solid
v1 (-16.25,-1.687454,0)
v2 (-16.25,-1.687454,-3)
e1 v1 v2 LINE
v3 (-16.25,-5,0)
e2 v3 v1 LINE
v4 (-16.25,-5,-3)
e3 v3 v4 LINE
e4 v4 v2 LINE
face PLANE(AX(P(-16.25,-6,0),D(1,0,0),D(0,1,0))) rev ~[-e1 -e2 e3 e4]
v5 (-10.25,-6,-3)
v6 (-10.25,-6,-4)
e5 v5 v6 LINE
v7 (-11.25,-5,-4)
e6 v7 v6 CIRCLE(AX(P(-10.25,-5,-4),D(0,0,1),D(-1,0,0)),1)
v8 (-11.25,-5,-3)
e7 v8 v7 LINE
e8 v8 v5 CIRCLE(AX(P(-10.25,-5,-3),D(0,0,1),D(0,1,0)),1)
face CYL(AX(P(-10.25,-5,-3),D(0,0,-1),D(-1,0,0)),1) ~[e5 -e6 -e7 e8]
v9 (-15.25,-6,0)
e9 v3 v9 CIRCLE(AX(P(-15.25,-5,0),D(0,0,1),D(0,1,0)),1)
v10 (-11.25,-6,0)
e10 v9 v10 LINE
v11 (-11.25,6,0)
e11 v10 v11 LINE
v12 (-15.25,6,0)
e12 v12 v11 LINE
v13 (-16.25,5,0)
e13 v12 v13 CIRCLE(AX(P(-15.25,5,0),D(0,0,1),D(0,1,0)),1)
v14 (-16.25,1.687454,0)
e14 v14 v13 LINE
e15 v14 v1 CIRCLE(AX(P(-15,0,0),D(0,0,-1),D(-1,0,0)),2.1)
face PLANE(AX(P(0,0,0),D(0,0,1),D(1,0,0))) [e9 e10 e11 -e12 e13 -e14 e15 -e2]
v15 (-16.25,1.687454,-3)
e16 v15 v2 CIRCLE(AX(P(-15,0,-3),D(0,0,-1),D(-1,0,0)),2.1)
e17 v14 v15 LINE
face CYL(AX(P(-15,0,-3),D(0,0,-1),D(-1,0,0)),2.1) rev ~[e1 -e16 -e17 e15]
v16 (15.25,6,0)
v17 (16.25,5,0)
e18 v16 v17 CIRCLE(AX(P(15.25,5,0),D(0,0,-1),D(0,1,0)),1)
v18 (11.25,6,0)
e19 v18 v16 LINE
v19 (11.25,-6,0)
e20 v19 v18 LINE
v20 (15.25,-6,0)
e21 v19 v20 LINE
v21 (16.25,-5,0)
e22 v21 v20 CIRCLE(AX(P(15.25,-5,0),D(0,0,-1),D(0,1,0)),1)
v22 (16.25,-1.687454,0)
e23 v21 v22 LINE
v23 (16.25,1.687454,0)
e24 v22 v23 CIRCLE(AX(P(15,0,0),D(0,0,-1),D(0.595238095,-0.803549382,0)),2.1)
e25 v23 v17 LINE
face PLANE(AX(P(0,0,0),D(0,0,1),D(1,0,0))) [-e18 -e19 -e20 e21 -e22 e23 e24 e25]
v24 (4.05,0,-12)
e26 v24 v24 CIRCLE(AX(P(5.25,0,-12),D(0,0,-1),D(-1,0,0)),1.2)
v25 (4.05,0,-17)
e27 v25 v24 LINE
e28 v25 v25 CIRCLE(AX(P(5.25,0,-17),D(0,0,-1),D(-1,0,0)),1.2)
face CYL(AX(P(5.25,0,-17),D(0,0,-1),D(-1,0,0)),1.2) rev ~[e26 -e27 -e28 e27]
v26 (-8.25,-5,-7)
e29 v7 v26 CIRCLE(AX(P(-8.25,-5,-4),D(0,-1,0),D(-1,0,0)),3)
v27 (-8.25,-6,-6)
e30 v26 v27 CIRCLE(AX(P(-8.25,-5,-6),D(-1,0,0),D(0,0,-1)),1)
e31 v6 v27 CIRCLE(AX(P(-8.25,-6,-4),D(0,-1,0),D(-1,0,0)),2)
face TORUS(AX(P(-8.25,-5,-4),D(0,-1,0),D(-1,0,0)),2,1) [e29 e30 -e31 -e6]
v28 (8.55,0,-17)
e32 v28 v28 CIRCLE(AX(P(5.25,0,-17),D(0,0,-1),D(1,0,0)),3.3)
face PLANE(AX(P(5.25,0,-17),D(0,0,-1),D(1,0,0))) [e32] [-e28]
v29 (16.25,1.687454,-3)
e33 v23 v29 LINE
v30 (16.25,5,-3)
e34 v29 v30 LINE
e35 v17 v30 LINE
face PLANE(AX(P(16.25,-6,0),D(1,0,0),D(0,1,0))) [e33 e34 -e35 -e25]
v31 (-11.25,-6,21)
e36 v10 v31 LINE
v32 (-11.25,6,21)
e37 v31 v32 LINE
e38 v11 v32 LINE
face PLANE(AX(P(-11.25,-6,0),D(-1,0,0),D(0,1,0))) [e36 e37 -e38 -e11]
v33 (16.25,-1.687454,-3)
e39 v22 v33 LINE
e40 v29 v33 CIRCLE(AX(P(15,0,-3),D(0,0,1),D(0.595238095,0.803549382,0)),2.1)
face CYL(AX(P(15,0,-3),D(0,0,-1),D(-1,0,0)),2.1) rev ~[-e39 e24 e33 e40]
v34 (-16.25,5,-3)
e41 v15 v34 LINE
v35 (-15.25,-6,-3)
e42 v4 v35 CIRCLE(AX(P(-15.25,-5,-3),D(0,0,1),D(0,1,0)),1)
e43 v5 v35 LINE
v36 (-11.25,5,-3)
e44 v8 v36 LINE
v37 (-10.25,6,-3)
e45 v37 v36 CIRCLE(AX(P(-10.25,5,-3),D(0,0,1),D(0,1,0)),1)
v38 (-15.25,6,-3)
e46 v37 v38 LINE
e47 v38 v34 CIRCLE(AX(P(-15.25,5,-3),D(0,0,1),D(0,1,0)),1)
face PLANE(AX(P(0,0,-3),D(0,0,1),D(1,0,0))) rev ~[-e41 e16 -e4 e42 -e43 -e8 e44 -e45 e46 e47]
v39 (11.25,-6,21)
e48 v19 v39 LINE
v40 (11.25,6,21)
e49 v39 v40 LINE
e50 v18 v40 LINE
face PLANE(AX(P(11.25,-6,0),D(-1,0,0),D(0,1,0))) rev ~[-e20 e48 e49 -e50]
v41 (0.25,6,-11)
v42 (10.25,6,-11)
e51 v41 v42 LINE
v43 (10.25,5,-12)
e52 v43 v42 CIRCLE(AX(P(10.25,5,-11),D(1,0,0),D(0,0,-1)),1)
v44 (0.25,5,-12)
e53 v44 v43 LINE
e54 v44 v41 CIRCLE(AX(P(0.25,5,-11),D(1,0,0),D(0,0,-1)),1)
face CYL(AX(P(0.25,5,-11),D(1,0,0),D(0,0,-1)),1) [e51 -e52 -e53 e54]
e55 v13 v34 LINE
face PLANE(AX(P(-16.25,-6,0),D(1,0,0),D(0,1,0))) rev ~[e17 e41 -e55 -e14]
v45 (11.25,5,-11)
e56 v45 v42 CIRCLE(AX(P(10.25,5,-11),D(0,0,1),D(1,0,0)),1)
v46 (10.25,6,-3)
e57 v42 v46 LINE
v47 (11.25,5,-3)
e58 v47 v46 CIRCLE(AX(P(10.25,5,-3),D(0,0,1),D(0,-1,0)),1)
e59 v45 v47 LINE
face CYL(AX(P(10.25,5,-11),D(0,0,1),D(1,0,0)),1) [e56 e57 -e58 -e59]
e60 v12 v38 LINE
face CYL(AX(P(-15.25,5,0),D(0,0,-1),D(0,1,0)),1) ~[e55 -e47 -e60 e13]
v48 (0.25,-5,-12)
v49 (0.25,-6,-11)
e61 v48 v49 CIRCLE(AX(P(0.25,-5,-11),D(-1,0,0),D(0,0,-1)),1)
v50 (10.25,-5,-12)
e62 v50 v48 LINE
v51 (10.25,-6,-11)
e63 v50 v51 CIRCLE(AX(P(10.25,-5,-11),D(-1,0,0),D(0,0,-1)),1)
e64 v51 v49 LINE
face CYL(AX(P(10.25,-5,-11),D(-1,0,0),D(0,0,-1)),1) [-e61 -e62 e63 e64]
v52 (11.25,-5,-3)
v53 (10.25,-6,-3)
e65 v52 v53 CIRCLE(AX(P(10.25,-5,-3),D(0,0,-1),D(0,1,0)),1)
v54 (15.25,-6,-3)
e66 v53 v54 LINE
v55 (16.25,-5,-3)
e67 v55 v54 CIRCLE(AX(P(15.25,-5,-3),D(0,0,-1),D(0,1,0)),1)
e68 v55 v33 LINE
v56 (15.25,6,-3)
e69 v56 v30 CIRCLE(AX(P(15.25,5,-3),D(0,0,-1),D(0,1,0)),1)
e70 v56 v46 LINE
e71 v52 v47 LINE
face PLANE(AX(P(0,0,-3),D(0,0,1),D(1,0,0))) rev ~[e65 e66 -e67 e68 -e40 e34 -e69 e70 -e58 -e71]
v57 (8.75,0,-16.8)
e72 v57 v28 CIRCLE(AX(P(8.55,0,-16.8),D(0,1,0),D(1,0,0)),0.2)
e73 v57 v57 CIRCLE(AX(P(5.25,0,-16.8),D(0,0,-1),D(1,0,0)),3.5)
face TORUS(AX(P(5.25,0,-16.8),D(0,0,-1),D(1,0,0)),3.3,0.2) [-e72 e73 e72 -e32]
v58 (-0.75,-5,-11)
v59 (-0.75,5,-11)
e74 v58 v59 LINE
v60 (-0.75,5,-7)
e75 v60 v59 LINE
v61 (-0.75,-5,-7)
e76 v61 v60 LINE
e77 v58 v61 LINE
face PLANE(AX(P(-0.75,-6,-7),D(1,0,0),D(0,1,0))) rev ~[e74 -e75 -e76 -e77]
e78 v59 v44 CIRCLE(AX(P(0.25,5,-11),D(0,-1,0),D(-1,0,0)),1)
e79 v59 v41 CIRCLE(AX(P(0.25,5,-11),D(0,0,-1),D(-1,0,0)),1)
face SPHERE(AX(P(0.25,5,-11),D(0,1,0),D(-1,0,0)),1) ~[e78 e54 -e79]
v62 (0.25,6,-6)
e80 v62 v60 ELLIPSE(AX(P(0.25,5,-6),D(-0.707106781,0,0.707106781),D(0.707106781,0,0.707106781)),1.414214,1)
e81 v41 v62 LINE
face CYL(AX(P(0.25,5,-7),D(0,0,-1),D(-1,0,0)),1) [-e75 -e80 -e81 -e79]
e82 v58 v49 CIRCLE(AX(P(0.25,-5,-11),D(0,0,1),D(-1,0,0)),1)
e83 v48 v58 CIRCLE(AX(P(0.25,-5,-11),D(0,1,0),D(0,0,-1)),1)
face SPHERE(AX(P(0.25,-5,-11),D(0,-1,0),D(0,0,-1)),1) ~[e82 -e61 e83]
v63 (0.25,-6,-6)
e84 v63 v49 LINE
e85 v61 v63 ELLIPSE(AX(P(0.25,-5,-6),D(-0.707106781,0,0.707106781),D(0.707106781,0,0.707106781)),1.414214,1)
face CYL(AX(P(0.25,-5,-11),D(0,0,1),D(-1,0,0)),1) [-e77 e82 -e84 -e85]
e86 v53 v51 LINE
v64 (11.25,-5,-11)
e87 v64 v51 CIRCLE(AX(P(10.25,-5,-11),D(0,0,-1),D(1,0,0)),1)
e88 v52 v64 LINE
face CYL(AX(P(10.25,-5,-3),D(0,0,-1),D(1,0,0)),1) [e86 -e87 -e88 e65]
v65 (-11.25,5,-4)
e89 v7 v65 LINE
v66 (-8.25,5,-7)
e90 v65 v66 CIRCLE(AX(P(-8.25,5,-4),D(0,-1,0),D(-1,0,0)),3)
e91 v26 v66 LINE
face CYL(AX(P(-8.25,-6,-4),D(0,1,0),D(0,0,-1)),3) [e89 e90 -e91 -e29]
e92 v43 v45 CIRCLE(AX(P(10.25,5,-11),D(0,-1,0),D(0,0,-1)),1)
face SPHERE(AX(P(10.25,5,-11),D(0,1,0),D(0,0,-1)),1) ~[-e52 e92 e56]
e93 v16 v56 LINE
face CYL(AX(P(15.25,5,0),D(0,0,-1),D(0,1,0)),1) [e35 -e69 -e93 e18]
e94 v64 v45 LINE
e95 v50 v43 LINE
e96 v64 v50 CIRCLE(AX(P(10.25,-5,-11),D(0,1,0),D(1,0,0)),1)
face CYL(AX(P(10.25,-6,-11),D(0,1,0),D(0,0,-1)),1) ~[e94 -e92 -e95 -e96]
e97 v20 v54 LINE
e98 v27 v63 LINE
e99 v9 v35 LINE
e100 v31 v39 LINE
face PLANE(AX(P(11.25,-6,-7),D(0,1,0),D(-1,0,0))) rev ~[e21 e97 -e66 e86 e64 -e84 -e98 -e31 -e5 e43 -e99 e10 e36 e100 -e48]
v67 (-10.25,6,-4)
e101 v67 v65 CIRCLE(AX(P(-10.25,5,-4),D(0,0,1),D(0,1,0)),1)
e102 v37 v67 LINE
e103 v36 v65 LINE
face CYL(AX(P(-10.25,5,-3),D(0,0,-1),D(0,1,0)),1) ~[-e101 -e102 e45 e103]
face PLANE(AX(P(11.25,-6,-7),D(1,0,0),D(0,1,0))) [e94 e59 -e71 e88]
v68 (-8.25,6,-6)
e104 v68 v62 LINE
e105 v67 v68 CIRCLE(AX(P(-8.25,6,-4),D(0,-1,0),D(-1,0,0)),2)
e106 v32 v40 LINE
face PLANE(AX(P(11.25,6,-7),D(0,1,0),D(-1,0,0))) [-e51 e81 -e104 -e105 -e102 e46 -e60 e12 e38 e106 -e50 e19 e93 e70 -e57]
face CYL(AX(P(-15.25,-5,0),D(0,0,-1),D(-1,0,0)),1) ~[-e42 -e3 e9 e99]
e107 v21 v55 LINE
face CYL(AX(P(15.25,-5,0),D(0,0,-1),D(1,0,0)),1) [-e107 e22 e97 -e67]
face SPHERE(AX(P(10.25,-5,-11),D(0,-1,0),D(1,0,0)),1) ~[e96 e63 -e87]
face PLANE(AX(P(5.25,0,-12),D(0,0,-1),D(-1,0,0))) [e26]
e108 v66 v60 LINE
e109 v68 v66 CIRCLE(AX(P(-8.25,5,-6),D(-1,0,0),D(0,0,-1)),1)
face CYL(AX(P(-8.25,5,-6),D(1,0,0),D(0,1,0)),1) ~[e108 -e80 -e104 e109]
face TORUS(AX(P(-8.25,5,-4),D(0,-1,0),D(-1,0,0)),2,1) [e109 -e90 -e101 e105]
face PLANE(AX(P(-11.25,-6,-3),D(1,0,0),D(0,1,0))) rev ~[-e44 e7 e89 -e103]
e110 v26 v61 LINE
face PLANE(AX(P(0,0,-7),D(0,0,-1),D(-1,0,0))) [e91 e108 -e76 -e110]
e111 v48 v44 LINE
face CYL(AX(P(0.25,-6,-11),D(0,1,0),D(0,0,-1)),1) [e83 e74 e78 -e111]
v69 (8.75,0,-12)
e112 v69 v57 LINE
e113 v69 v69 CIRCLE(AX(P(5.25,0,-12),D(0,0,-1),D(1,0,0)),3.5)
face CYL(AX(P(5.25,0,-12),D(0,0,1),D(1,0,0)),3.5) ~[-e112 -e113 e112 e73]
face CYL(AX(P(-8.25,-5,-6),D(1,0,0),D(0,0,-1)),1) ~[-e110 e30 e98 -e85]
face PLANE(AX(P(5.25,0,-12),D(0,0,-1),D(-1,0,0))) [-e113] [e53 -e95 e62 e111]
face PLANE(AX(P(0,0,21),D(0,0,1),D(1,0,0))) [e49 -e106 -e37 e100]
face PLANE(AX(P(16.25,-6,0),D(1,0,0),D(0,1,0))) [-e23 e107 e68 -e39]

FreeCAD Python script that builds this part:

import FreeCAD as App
import Part
import Sketcher
from FreeCAD import Vector


def edges_at(feature, points):
    """Names of the edges that pass closest to the given points."""
    edges = feature.Shape.Edges
    near = lambda p: min(range(len(edges)), key=lambda i: edges[i].distToShape(Part.Vertex(*p))[0])
    return sorted({f"Edge{near(p) + 1}" for p in points})


def add_polygon(sketch, points):
    """Adds a closed chain of lines whose ends are joined by coincident constraints."""
    first, n = sketch.GeometryCount, len(points)
    for a, b in zip(points, points[1:] + points[:1]):
        sketch.addGeometry(Part.LineSegment(App.Vector(*a, 0), App.Vector(*b, 0)), False)
    for i in range(n):
        sketch.addConstraint(Sketcher.Constraint("Coincident", first + i, 2, first + (i + 1) % n, 1))

doc = App.newDocument("Part")
params = doc.addObject("Spreadsheet::Sheet", "Params")
for row, (alias, value) in enumerate([
    ("sketch1_height", "12 mm"),
    ("sketch1_width", "22.5 mm"),
    ("pad1_length", "21 mm"),
    ("sketch2_height", "12 mm"),
    ("sketch2_width", "32.5 mm"),
    ("pad2_length", "3 mm"),
    ("sketch3_height", "12 mm"),
    ("sketch3_width", "22.5 mm"),
    ("pad3_length", "4 mm"),
    ("sketch4_width", "12 mm"),
    ("pad4_length", "5 mm"),
    ("sketch5_diameter", "7 mm"),
    ("pad5_length", "5 mm"),
    ("sketch6_diameter", "2.4 mm"),
    ("pocket1_length", "5 mm"),
    ("fillet_radius", "3 mm"),
    ("fillet2_radius", "1 mm"),
    ("fillet3_radius", "1 mm"),
    ("fillet4_radius", "1 mm"),
    ("fillet5_radius", "1 mm"),
    ("fillet6_radius", "1 mm"),
    ("fillet7_radius", "1 mm"),
    ("fillet8_radius", "0.2 mm"),
    ("sketch7_diameter", "4.2 mm"),
    ("pocket2_length", "5 mm"),
    ("sketch8_diameter", "4.2 mm"),
    ("pocket3_length", "5 mm"),
    ("fillet9_radius", "1 mm"),
], start=1):
    params.set(f"A{row}", alias)
    params.set(f"B{row}", "=" + value)
    params.setAlias(f"B{row}", alias)

body = doc.addObject("PartDesign::Body", "Body")

# Sketch on XY plane
sketch1 = doc.addObject("Sketcher::SketchObject", "Sketch")
body.addObject(sketch1)
sketch1.AttachmentSupport = (doc.XY_Plane, [""])
sketch1.MapMode = "FlatFace"
add_polygon(sketch1, [(-11, 6), (-11, -6), (11, -6), (11, 6)])  # lines 0-3
sketch1.addConstraint(Sketcher.Constraint("Vertical", 0))
sketch1.addConstraint(Sketcher.Constraint("Horizontal", 1))
sketch1.addConstraint(Sketcher.Constraint("Vertical", 2))
sketch1.addConstraint(Sketcher.Constraint("Horizontal", 3))
sketch1.addConstraint(Sketcher.Constraint("Symmetric", 0, 2, 2, 2, -1, 1))
sketch1.addConstraint(Sketcher.Constraint("DistanceY", 0, 2, 0, 1, 12.0))
sketch1.addConstraint(Sketcher.Constraint("DistanceX", 1, 1, 1, 2, 22.5))
sketch1.setExpression("Constraints[9]", "Params.sketch1_height")
sketch1.setExpression("Constraints[10]", "Params.sketch1_width")
pad1 = doc.addObject("PartDesign::Pad", "Pad")
body.addObject(pad1)
pad1.Profile = sketch1
pad1.setExpression("Length", "Params.pad1_length")

# Sketch on XY plane
sketch2 = doc.addObject("Sketcher::SketchObject", "Sketch001")
body.addObject(sketch2)
sketch2.AttachmentSupport = (doc.XY_Plane, [""])
sketch2.MapMode = "FlatFace"
add_polygon(sketch2, [(-16, 6), (-16, -6), (16, -6), (16, 6)])  # lines 0-3
sketch2.addConstraint(Sketcher.Constraint("Vertical", 0))
sketch2.addConstraint(Sketcher.Constraint("Horizontal", 1))
sketch2.addConstraint(Sketcher.Constraint("Vertical", 2))
sketch2.addConstraint(Sketcher.Constraint("Horizontal", 3))
sketch2.addConstraint(Sketcher.Constraint("Symmetric", 0, 2, 2, 2, -1, 1))
sketch2.addConstraint(Sketcher.Constraint("DistanceY", 0, 2, 0, 1, 12.0))
sketch2.addConstraint(Sketcher.Constraint("DistanceX", 1, 1, 1, 2, 32.5))
sketch2.setExpression("Constraints[9]", "Params.sketch2_height")
sketch2.setExpression("Constraints[10]", "Params.sketch2_width")
pad2 = doc.addObject("PartDesign::Pad", "Pad001")
body.addObject(pad2)
pad2.Profile = sketch2
pad2.setExpression("Length", "Params.pad2_length")
pad2.Reversed = True

# Sketch on XY plane
sketch3 = doc.addObject("Sketcher::SketchObject", "Sketch002")
body.addObject(sketch3)
sketch3.AttachmentSupport = (doc.XY_Plane, [""])
sketch3.MapMode = "FlatFace"
sketch3.AttachmentOffset = App.Placement(Vector(0, 0, -3), App.Rotation())
add_polygon(sketch3, [(11, 6), (11, -6), (-11, -6), (-11, 6)])  # lines 0-3
sketch3.addConstraint(Sketcher.Constraint("Vertical", 0))
sketch3.addConstraint(Sketcher.Constraint("Horizontal", 1))
sketch3.addConstraint(Sketcher.Constraint("Vertical", 2))
sketch3.addConstraint(Sketcher.Constraint("Horizontal", 3))
sketch3.addConstraint(Sketcher.Constraint("Symmetric", 0, 2, 2, 2, -1, 1))
sketch3.addConstraint(Sketcher.Constraint("DistanceY", 0, 2, 0, 1, 12.0))
sketch3.addConstraint(Sketcher.Constraint("DistanceX", 1, 2, 1, 1, 22.5))
sketch3.setExpression("Constraints[9]", "Params.sketch3_height")
sketch3.setExpression("Constraints[10]", "Params.sketch3_width")
pad3 = doc.addObject("PartDesign::Pad", "Pad002")
body.addObject(pad3)
pad3.Profile = sketch3
pad3.setExpression("Length", "Params.pad3_length")
pad3.Reversed = True

# Sketch on XY plane
sketch4 = doc.addObject("Sketcher::SketchObject", "Sketch003")
body.addObject(sketch4)
sketch4.AttachmentSupport = (doc.XY_Plane, [""])
sketch4.MapMode = "FlatFace"
sketch4.AttachmentOffset = App.Placement(Vector(0, 0, -7), App.Rotation())
add_polygon(sketch4, [(11, 6), (11, -6), (-1, -6), (-1, 6)])  # lines 0-3
sketch4.addConstraint(Sketcher.Constraint("Vertical", 0))
sketch4.addConstraint(Sketcher.Constraint("Horizontal", 1))
sketch4.addConstraint(Sketcher.Constraint("Vertical", 2))
sketch4.addConstraint(Sketcher.Constraint("Horizontal", 3))
sketch4.addConstraint(Sketcher.Constraint("Equal", 3, 0))
sketch4.addConstraint(Sketcher.Constraint("DistanceX", 1, 2, 1, 1, 12.0))
sketch4.addConstraint(Sketcher.Constraint("DistanceY", 0, 2, -1, 1, 6.0))
sketch4.addConstraint(Sketcher.Constraint("DistanceX", -1, 1, 0, 2, 11.25))
sketch4.setExpression("Constraints[9]", "Params.sketch4_width")
pad4 = doc.addObject("PartDesign::Pad", "Pad003")
body.addObject(pad4)
pad4.Profile = sketch4
pad4.setExpression("Length", "Params.pad4_length")
pad4.Reversed = True

# Sketch on XY plane
sketch5 = doc.addObject("Sketcher::SketchObject", "Sketch004")
body.addObject(sketch5)
sketch5.AttachmentSupport = (doc.XY_Plane, [""])
sketch5.MapMode = "FlatFace"
sketch5.AttachmentOffset = App.Placement(Vector(0, 0, -12), App.Rotation())
sketch5.addGeometry(Part.Circle(Vector(5.2, 0, 0), Vector(0, 0, 1), 3.5), False)
sketch5.addConstraint(Sketcher.Constraint("PointOnObject", 0, 3, -1))
sketch5.addConstraint(Sketcher.Constraint("Diameter", 0, 7.0))
sketch5.addConstraint(Sketcher.Constraint("DistanceX", -1, 1, 0, 3, 5.25))
sketch5.setExpression("Constraints[1]", "Params.sketch5_diameter")
pad5 = doc.addObject("PartDesign::Pad", "Pad004")
body.addObject(pad5)
pad5.Profile = sketch5
pad5.setExpression("Length", "Params.pad5_length")
pad5.Reversed = True

# Sketch on XY plane
sketch6 = doc.addObject("Sketcher::SketchObject", "Sketch005")
body.addObject(sketch6)
sketch6.AttachmentSupport = (doc.XY_Plane, [""])
sketch6.MapMode = "FlatFace"
sketch6.AttachmentOffset = App.Placement(Vector(0, 0, -17), App.Rotation())
sketch6.addGeometry(Part.Circle(Vector(5.2, 0, 0), Vector(0, 0, 1), 1.2), False)
sketch6.addConstraint(Sketcher.Constraint("PointOnObject", 0, 3, -1))
sketch6.addConstraint(Sketcher.Constraint("Diameter", 0, 2.4))
sketch6.addConstraint(Sketcher.Constraint("DistanceX", -1, 1, 0, 3, 5.25))
sketch6.setExpression("Constraints[1]", "Params.sketch6_diameter")
pocket1 = doc.addObject("PartDesign::Pocket", "Pocket")
body.addObject(pocket1)
pocket1.Profile = sketch6
pocket1.setExpression("Length", "Params.pocket1_length")
pocket1.Reversed = True
doc.recompute()

fillet = doc.addObject("PartDesign::Fillet", "Fillet")
body.addObject(fillet)
fillet.Base = (pocket1, edges_at(pocket1, [(-11.25, 0, -7)]))
fillet.setExpression("Radius", "Params.fillet_radius")
doc.recompute()

fillet2 = doc.addObject("PartDesign::Fillet", "Fillet001")
body.addObject(fillet2)
fillet2.Base = (fillet, edges_at(fillet, [(11.25, 0, -12)]))
fillet2.setExpression("Radius", "Params.fillet2_radius")
doc.recompute()

fillet3 = doc.addObject("PartDesign::Fillet", "Fillet002")
body.addObject(fillet3)
fillet3.Base = (fillet2, edges_at(fillet2, [(-0.75, 0, -12)]))
fillet3.setExpression("Radius", "Params.fillet3_radius")
doc.recompute()

fillet4 = doc.addObject("PartDesign::Fillet", "Fillet003")
body.addObject(fillet4)
fillet4.Base = (fillet3, edges_at(fillet3, [
    (11.25, -6, -7),
    (10.957, -6, -11.707),
    (-0.75, -6, -9),
    (-0.457, -6, -11.707),
    (5.25, -6, -12),
]))
fillet4.setExpression("Radius", "Params.fillet4_radius")
doc.recompute()

fillet5 = doc.addObject("PartDesign::Fillet", "Fillet004")
body.addObject(fillet5)
fillet5.Base = (fillet4, edges_at(fillet4, [
    (11.25, 6, -7),
    (10.957, 6, -11.707),
    (-0.75, 6, -9),
    (-0.457, 6, -11.707),
    (5.25, 6, -12),
]))
fillet5.setExpression("Radius", "Params.fillet5_radius")
doc.recompute()

fillet6 = doc.addObject("PartDesign::Fillet", "Fillet005")
body.addObject(fillet6)
fillet6.Base = (fillet5, edges_at(fillet5, [(-11.25, 6, -3.5), (-10.371, 6, -6.121), (-4, 6, -7)]))
fillet6.setExpression("Radius", "Params.fillet6_radius")
doc.recompute()

fillet7 = doc.addObject("PartDesign::Fillet", "Fillet006")
body.addObject(fillet7)
fillet7.Base = (fillet6, edges_at(fillet6, [(-11.25, -6, -3.5), (-10.371, -6, -6.121), (-4, -6, -7)]))
fillet7.setExpression("Radius", "Params.fillet7_radius")
doc.recompute()

fillet8 = doc.addObject("PartDesign::Fillet", "Fillet007")
body.addObject(fillet8)
fillet8.Base = (fillet7, edges_at(fillet7, [(1.75, 0, -17)]))
fillet8.setExpression("Radius", "Params.fillet8_radius")

# Sketch on XY plane
sketch7 = doc.addObject("Sketcher::SketchObject", "Sketch006")
body.addObject(sketch7)
sketch7.AttachmentSupport = (doc.XY_Plane, [""])
sketch7.MapMode = "FlatFace"
sketch7.AttachmentOffset = App.Placement(Vector(0, 0, -3), App.Rotation())
sketch7.addGeometry(Part.Circle(Vector(-15, 0, 0), Vector(0, 0, 1), 2.1), False)
sketch7.addConstraint(Sketcher.Constraint("PointOnObject", 0, 3, -1))
sketch7.addConstraint(Sketcher.Constraint("Diameter", 0, 4.2))
sketch7.addConstraint(Sketcher.Constraint("DistanceX", 0, 3, -1, 1, 15.0))
sketch7.setExpression("Constraints[1]", "Params.sketch7_diameter")
pocket2 = doc.addObject("PartDesign::Pocket", "Pocket001")
body.addObject(pocket2)
pocket2.Profile = sketch7
pocket2.setExpression("Length", "Params.pocket2_length")
pocket2.Reversed = True

# Sketch on XY plane
sketch8 = doc.addObject("Sketcher::SketchObject", "Sketch007")
body.addObject(sketch8)
sketch8.AttachmentSupport = (doc.XY_Plane, [""])
sketch8.MapMode = "FlatFace"
sketch8.AttachmentOffset = App.Placement(Vector(0, 0, -3), App.Rotation())
sketch8.addGeometry(Part.Circle(Vector(15, 0, 0), Vector(0, 0, 1), 2.1), False)
sketch8.addConstraint(Sketcher.Constraint("PointOnObject", 0, 3, -1))
sketch8.addConstraint(Sketcher.Constraint("Diameter", 0, 4.2))
sketch8.addConstraint(Sketcher.Constraint("DistanceX", -1, 1, 0, 3, 15.0))
sketch8.setExpression("Constraints[1]", "Params.sketch8_diameter")
pocket3 = doc.addObject("PartDesign::Pocket", "Pocket002")
body.addObject(pocket3)
pocket3.Profile = sketch8
pocket3.setExpression("Length", "Params.pocket3_length")
pocket3.Reversed = True
doc.recompute()

fillet9 = doc.addObject("PartDesign::Fillet", "Fillet008")
body.addObject(fillet9)
fillet9.Base = (pocket3, edges_at(pocket3, [
    (-16.25, -6, -1.5),
    (-16.25, 6, -1.5),
    (16.25, -6, -1.5),
    (16.25, 6, -1.5),
]))
fillet9.setExpression("Radius", "Params.fillet9_radius")

doc.recompute()
